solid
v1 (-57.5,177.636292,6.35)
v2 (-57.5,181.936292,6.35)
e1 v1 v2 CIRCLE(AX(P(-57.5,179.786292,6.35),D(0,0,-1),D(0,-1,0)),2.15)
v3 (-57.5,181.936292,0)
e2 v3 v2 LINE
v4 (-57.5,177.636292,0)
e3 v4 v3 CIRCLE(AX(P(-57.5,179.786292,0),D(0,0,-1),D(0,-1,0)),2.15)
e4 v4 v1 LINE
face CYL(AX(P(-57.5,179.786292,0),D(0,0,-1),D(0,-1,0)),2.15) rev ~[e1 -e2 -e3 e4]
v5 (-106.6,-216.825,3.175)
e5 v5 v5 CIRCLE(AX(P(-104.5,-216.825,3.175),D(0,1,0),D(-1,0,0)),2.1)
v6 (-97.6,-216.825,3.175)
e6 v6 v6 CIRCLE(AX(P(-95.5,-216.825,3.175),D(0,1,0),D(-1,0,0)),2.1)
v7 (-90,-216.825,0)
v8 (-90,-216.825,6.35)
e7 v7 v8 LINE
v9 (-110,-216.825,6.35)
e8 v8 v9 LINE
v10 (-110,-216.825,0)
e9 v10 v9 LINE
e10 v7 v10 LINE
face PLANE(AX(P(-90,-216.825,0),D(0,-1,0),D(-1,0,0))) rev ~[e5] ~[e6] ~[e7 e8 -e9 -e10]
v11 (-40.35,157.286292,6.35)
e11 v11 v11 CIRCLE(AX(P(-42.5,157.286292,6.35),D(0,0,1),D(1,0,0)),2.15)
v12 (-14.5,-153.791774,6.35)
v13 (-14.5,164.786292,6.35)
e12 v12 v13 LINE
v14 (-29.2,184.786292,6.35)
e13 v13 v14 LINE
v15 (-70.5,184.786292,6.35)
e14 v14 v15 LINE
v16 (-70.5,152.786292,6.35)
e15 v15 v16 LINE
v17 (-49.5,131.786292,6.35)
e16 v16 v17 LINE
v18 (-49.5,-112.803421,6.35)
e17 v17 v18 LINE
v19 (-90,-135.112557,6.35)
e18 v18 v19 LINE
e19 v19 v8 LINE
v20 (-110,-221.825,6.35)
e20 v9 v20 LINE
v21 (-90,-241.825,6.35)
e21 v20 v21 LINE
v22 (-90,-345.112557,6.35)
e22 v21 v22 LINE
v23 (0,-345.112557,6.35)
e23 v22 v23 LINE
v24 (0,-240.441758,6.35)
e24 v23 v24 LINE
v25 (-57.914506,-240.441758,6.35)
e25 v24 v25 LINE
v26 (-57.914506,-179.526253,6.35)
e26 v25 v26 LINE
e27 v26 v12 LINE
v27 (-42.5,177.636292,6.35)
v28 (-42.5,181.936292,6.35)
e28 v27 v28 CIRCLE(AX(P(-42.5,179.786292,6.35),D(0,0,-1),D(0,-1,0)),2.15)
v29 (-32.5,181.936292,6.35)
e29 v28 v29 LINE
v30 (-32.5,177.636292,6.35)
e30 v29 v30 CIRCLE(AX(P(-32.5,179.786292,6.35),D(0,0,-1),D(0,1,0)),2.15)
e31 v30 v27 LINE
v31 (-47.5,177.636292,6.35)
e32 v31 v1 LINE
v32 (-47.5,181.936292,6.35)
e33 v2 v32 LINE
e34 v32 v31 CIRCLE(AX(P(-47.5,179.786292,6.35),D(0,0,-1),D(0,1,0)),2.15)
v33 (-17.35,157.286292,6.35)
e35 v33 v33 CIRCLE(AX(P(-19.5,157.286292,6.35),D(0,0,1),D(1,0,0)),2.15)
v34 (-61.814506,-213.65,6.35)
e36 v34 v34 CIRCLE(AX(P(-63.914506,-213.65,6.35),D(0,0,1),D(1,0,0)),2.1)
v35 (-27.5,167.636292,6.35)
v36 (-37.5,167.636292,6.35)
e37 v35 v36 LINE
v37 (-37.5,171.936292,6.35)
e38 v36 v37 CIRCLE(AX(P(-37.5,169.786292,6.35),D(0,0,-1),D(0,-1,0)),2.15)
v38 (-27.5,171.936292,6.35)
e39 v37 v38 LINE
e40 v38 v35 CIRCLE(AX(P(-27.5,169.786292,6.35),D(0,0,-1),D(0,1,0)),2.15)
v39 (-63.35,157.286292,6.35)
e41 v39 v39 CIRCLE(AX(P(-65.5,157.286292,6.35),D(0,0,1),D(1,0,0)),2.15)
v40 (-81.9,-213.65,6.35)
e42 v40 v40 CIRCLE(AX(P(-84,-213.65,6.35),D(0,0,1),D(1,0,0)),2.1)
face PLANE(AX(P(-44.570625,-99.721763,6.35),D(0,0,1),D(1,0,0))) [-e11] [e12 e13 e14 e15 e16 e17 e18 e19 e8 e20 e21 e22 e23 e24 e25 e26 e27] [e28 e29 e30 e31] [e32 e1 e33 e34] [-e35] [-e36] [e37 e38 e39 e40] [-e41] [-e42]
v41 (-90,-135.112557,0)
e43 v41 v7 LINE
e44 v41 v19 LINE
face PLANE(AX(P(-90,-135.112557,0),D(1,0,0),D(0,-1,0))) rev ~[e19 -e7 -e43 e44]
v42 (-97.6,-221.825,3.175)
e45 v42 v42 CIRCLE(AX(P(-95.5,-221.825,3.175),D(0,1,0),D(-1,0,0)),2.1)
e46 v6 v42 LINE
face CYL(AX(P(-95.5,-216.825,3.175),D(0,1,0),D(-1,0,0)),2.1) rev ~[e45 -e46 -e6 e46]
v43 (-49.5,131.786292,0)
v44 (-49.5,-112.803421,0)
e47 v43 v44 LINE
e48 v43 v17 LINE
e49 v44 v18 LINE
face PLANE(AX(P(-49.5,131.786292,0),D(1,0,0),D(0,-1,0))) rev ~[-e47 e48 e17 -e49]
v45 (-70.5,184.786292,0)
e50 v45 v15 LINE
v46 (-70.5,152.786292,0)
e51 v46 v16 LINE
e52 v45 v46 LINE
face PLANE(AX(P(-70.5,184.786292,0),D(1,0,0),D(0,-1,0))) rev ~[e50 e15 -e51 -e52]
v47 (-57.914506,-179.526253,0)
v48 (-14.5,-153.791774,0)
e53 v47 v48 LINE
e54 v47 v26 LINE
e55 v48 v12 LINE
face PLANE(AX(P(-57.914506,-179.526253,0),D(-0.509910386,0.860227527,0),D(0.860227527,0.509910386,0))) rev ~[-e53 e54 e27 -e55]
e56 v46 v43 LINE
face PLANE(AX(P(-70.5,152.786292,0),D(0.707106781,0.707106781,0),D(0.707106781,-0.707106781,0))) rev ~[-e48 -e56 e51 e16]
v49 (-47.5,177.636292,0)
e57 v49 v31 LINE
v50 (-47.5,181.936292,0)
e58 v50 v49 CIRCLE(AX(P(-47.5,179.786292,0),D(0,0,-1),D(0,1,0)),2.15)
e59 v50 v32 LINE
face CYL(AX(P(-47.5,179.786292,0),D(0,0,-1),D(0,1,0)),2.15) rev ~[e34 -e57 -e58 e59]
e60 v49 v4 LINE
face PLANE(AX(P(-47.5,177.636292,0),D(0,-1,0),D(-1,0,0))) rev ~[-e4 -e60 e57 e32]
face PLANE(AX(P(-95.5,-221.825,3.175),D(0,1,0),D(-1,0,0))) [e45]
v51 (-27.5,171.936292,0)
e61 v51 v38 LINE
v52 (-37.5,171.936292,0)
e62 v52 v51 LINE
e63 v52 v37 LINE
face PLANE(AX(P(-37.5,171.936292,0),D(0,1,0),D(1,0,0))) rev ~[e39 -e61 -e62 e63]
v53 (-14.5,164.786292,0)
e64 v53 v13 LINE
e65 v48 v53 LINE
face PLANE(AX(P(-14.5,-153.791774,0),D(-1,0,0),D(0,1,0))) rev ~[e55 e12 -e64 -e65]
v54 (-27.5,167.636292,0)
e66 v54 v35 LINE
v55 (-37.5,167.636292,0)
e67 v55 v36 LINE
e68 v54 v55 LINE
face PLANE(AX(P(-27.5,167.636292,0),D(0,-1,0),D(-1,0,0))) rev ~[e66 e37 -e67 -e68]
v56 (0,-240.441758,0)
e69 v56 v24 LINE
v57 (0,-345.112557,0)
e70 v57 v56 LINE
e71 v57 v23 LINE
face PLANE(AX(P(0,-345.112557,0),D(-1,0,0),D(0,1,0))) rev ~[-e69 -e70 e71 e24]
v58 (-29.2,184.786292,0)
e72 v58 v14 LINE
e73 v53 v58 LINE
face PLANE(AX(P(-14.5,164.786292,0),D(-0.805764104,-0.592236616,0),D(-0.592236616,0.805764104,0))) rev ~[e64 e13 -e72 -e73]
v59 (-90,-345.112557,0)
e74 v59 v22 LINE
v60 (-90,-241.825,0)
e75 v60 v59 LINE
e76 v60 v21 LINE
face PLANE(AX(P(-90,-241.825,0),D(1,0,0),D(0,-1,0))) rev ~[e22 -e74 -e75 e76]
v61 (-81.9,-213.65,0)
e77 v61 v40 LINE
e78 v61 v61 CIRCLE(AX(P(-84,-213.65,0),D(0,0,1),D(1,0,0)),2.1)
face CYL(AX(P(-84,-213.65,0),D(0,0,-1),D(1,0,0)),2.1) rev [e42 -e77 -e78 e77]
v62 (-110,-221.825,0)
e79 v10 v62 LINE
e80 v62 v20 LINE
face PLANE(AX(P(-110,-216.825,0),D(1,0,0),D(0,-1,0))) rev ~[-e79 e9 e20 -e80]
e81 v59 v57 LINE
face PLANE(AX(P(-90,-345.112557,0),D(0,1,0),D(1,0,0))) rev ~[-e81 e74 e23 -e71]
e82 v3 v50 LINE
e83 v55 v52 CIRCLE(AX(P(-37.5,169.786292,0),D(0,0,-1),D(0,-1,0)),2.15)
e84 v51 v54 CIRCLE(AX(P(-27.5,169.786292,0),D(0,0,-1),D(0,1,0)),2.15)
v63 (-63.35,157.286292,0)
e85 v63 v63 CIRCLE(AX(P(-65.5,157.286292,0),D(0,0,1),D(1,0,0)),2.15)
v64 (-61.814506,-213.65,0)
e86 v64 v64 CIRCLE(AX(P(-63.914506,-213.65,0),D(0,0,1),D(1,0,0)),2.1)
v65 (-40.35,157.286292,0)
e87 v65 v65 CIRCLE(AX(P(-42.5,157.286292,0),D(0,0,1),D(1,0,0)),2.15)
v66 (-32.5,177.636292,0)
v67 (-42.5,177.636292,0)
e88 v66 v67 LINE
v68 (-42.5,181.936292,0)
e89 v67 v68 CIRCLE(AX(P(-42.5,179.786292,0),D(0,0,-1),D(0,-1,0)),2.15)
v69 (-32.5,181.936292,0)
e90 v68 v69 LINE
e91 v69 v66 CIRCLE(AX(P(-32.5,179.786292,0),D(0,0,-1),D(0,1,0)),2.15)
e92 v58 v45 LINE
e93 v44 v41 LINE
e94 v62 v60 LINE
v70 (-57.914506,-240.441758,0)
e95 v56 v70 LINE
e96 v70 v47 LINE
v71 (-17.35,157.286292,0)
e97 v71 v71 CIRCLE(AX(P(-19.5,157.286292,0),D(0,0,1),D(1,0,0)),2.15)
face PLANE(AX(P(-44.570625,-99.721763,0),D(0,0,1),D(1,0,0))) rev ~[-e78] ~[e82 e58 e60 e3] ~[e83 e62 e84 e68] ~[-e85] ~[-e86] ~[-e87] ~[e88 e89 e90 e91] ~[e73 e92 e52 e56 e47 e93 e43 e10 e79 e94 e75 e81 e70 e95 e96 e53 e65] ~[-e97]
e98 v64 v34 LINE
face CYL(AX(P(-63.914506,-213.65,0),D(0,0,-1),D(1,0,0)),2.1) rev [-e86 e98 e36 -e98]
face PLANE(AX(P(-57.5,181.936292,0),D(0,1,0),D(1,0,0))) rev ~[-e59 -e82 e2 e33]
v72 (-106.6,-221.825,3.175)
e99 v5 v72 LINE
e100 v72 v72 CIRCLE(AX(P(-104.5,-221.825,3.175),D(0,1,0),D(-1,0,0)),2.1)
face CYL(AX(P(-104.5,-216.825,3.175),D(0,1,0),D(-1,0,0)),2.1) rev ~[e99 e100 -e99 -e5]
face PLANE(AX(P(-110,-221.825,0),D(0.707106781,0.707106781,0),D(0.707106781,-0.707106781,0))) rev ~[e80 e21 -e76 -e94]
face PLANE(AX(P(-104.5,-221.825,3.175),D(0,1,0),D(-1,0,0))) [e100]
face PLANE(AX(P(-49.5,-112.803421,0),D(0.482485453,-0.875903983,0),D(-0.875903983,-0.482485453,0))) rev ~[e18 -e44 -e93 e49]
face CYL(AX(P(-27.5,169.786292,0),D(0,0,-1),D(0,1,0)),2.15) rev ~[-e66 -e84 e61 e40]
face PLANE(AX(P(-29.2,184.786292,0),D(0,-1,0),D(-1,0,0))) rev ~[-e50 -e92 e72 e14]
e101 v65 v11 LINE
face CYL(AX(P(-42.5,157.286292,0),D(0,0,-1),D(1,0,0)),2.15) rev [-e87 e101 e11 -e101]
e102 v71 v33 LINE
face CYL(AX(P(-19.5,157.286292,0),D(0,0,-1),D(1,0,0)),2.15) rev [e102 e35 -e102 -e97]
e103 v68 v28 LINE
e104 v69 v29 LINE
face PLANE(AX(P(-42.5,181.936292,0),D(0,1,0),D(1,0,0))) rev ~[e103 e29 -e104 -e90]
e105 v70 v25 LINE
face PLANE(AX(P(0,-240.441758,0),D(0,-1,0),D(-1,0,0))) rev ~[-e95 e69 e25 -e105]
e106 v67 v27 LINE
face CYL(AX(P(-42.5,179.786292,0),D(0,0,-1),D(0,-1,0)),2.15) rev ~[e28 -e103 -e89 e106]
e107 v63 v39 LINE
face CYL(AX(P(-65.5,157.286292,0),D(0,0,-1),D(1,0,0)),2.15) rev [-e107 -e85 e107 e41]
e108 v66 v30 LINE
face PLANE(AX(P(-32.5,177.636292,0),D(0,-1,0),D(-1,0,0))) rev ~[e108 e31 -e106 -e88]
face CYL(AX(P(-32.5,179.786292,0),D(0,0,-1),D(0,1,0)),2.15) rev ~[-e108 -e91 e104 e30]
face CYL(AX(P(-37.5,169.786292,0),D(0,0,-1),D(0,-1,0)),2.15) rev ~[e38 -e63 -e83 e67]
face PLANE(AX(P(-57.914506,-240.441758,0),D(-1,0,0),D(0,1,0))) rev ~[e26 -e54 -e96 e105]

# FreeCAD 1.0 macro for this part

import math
import FreeCAD as App
import Part
import Sketcher
from FreeCAD import Vector
Q = App.Units.Quantity

doc = App.newDocument("Part")
body = doc.addObject("PartDesign::Body", "Body")

# Sketch on XY plane
sketch1 = body.newObject("Sketcher::SketchObject", "Sketch")
sketch1.AttachmentSupport = (doc.getObject("XY_Plane"), [""])
sketch1.MapMode = "FlatFace"
sketch1.addGeometry([
    Part.LineSegment(Vector(-14.5, 164.8, 0), Vector(-29.2, 184.8, 0)),  # 0
    Part.LineSegment(Vector(-29.2, 184.8, 0), Vector(-70.5, 184.8, 0)),  # 1
    Part.LineSegment(Vector(-70.5, 184.8, 0), Vector(-70.5, 152.8, 0)),  # 2
    Part.LineSegment(Vector(-70.5, 152.8, 0), Vector(-49.5, 131.8, 0)),  # 3
    Part.LineSegment(Vector(-49.5, 131.8, 0), Vector(-49.5, -112.8, 0)),  # 4
    Part.LineSegment(Vector(-49.5, -112.8, 0), Vector(-90, -135.1, 0)),  # 5
    Part.LineSegment(Vector(-90, -135.1, 0), Vector(-90, -216.8, 0)),  # 6
    Part.LineSegment(Vector(-90, -216.8, 0), Vector(-110, -216.8, 0)),  # 7
    Part.LineSegment(Vector(-110, -216.8, 0), Vector(-110, -221.8, 0)),  # 8
    Part.LineSegment(Vector(-110, -221.8, 0), Vector(-90, -241.8, 0)),  # 9
    Part.LineSegment(Vector(-90, -241.8, 0), Vector(-90, -345.1, 0)),  # 10
    Part.LineSegment(Vector(-90, -345.1, 0), Vector(0, -345.1, 0)),  # 11
    Part.LineSegment(Vector(0, -345.1, 0), Vector(0, -240.4, 0)),  # 12
    Part.LineSegment(Vector(0, -240.4, 0), Vector(-57.9, -240.4, 0)),  # 13
    Part.LineSegment(Vector(-57.9, -240.4, 0), Vector(-57.9, -179.5, 0)),  # 14
    Part.LineSegment(Vector(-57.9, -179.5, 0), Vector(-14.5, -153.8, 0)),  # 15
    Part.LineSegment(Vector(-14.5, -153.8, 0), Vector(-14.5, 164.8, 0)),  # 16
    Part.Circle(Vector(-84, -213.7, 0), Vector(0, 0, 1), 2.1),  # 17
    Part.Circle(Vector(-63.9, -213.7, 0), Vector(0, 0, 1), 2.1),  # 18
    Part.Circle(Vector(-65.5, 157.3, 0), Vector(0, 0, 1), 2.1),  # 19
    Part.ArcOfCircle(Part.Circle(Vector(-57.5, 179.8, 0), Vector(0, 0, 1), 2.1), math.radians(90), math.radians(270)),  # 20
    Part.LineSegment(Vector(-57.5, 181.9, 0), Vector(-47.5, 181.9, 0)),  # 21
    Part.ArcOfCircle(Part.Circle(Vector(-47.5, 179.8, 0), Vector(0, 0, 1), 2.1), math.radians(-90), math.radians(90)),  # 22
    Part.LineSegment(Vector(-47.5, 177.6, 0), Vector(-57.5, 177.6, 0)),  # 23
    Part.Circle(Vector(-42.5, 157.3, 0), Vector(0, 0, 1), 2.1),  # 24
    Part.ArcOfCircle(Part.Circle(Vector(-42.5, 179.8, 0), Vector(0, 0, 1), 2.1), math.radians(90), math.radians(270)),  # 25
    Part.LineSegment(Vector(-42.5, 181.9, 0), Vector(-32.5, 181.9, 0)),  # 26
    Part.ArcOfCircle(Part.Circle(Vector(-32.5, 179.8, 0), Vector(0, 0, 1), 2.1), math.radians(-90), math.radians(90)),  # 27
    Part.LineSegment(Vector(-32.5, 177.6, 0), Vector(-42.5, 177.6, 0)),  # 28
    Part.ArcOfCircle(Part.Circle(Vector(-37.5, 169.8, 0), Vector(0, 0, 1), 2.1), math.radians(90), math.radians(270)),  # 29
    Part.LineSegment(Vector(-37.5, 171.9, 0), Vector(-27.5, 171.9, 0)),  # 30
    Part.ArcOfCircle(Part.Circle(Vector(-27.5, 169.8, 0), Vector(0, 0, 1), 2.1), math.radians(-90), math.radians(90)),  # 31
    Part.LineSegment(Vector(-27.5, 167.6, 0), Vector(-37.5, 167.6, 0)),  # 32
    Part.Circle(Vector(-19.5, 157.3, 0), Vector(0, 0, 1), 2.1),  # 33
], False)
sketch1.addConstraint([
    Sketcher.Constraint("Coincident", 0, 2, 1, 1),
    Sketcher.Constraint("Coincident", 1, 2, 2, 1),
    Sketcher.Constraint("Coincident", 2, 2, 3, 1),
    Sketcher.Constraint("Coincident", 3, 2, 4, 1),
    Sketcher.Constraint("Coincident", 4, 2, 5, 1),
    Sketcher.Constraint("Coincident", 5, 2, 6, 1),
    Sketcher.Constraint("Coincident", 6, 2, 7, 1),
    Sketcher.Constraint("Coincident", 7, 2, 8, 1),
    Sketcher.Constraint("Coincident", 8, 2, 9, 1),
    Sketcher.Constraint("Coincident", 9, 2, 10, 1),
    Sketcher.Constraint("Coincident", 10, 2, 11, 1),
    Sketcher.Constraint("Coincident", 11, 2, 12, 1),
    Sketcher.Constraint("Coincident", 12, 2, 13, 1),
    Sketcher.Constraint("Coincident", 13, 2, 14, 1),
    Sketcher.Constraint("Coincident", 14, 2, 15, 1),
    Sketcher.Constraint("Coincident", 15, 2, 16, 1),
    Sketcher.Constraint("Coincident", 16, 2, 0, 1),
    Sketcher.Constraint("Tangent", 20, 1, 21, 1),
    Sketcher.Constraint("Tangent", 21, 2, 22, 2),
    Sketcher.Constraint("Tangent", 22, 1, 23, 1),
    Sketcher.Constraint("Tangent", 23, 2, 20, 2),
    Sketcher.Constraint("Tangent", 25, 1, 26, 1),
    Sketcher.Constraint("Tangent", 26, 2, 27, 2),
    Sketcher.Constraint("Tangent", 27, 1, 28, 1),
    Sketcher.Constraint("Tangent", 28, 2, 25, 2),
    Sketcher.Constraint("Tangent", 29, 1, 30, 1),
    Sketcher.Constraint("Tangent", 30, 2, 31, 2),
    Sketcher.Constraint("Tangent", 31, 1, 32, 1),
    Sketcher.Constraint("Tangent", 32, 2, 29, 2),
    Sketcher.Constraint("Horizontal", 1),
    Sketcher.Constraint("Vertical", 2),
    Sketcher.Constraint("Vertical", 4),
    Sketcher.Constraint("Vertical", 6),
    Sketcher.Constraint("Horizontal", 7),
    Sketcher.Constraint("Vertical", 8),
    Sketcher.Constraint("Vertical", 10),
    Sketcher.Constraint("Horizontal", 11),
    Sketcher.Constraint("Vertical", 12),
    Sketcher.Constraint("Horizontal", 13),
    Sketcher.Constraint("Vertical", 14),
    Sketcher.Constraint("Vertical", 16),
    Sketcher.Constraint("Horizontal", 21),
    Sketcher.Constraint("Horizontal", 23),
    Sketcher.Constraint("Horizontal", 26),
    Sketcher.Constraint("Horizontal", 28),
    Sketcher.Constraint("Horizontal", 30),
    Sketcher.Constraint("Horizontal", 32),
    Sketcher.Constraint("Equal", 17, 18),
    Sketcher.Constraint("Equal", 19, 20),
    Sketcher.Constraint("Equal", 22, 24),
    Sketcher.Constraint("Equal", 24, 25),
    Sketcher.Constraint("Equal", 27, 29),
    Sketcher.Constraint("Equal", 31, 33),
    Sketcher.Constraint("PointOnObject", 11, 2, -2),
    Sketcher.Constraint("Parallel", 3, 9),
    Sketcher.Constraint("Horizontal", 17, 3, 18, 3),
    Sketcher.Constraint("Horizontal", 19, 3, 24, 3),
    Sketcher.Constraint("Horizontal", 22, 3, 25, 3),
    Sketcher.Constraint("Horizontal", 24, 3, 33, 3),
    Sketcher.Constraint("Vertical", 24, 3, 25, 3),
    Sketcher.Constraint("Vertical", 6, 2, 9, 2),
    Sketcher.Constraint("Equal", 23, 26),
    Sketcher.Constraint("Equal", 28, 30),
    Sketcher.Constraint("Diameter", 17, Q("4.2 mm")),
    Sketcher.Constraint("Diameter", 19, Q("4.3 mm")),
    Sketcher.Constraint("DistanceX", 7, 2, 7, 1, Q("20 mm")),
    Sketcher.Constraint("DistanceX", 11, 1, 11, 2, Q("90 mm")),
    Sketcher.Constraint("DistanceX", 21, 1, 21, 2, Q("10 mm")),
    Sketcher.Constraint("DistanceY", 2, 2, 2, 1, Q("32 mm")),
    Sketcher.Constraint("DistanceY", 8, 2, 8, 1, Q("5 mm")),
    Sketcher.Constraint("Angle", 3, Q("-45 deg")),
    Sketcher.Constraint("DistanceX", 1, 2, 1, 1, Q("41.3 mm")),
    Sketcher.Constraint("DistanceX", 17, 3, -1, 1, Q("84 mm")),
    Sketcher.Constraint("DistanceX", 19, 3, 20, 3, Q("8 mm")),
    Sketcher.Constraint("DistanceX", 19, 3, 24, 3, Q("23 mm")),
    Sketcher.Constraint("DistanceX", 25, 3, 29, 3, Q("5 mm")),
    Sketcher.Constraint("DistanceY", 29, 3, 25, 3, Q("10 mm")),
    Sketcher.Constraint("DistanceX", 31, 3, 33, 3, Q("8 mm")),
    Sketcher.Constraint("DistanceY", 27, 3, 0, 2, Q("5 mm")),
    Sketcher.Constraint("DistanceX", 1, 2, 20, 3, Q("13 mm")),
    Sketcher.Constraint("DistanceX", 3, 2, 24, 3, Q("7 mm")),
    Sketcher.Constraint("DistanceX", 18, 3, 13, 2, Q("6 mm")),
    Sketcher.Constraint("DistanceX", 4, 2, 15, 2, Q("35 mm")),
    Sketcher.Constraint("DistanceY", 16, 2, 31, 3, Q("5 mm")),
    Sketcher.Constraint("DistanceX", 19, 3, -1, 1, Q("65.5 mm")),
    Sketcher.Constraint("DistanceY", 19, 3, 20, 3, Q("22.5 mm")),
    Sketcher.Constraint("DistanceY", 17, 3, -1, 1, Q("213.65 mm")),
    Sketcher.Constraint("DistanceY", 12, 1, 12, 2, Q("104.670799 mm")),
    Sketcher.Constraint("DistanceY", 6, 2, -1, 1, Q("216.825 mm")),
    Sketcher.Constraint("Distance", 15, Q("50.468631 mm")),
    Sketcher.Constraint("DistanceX", 13, 2, 13, 1, Q("57.914506 mm")),
    Sketcher.Constraint("DistanceY", 4, 2, 4, 1, Q("244.589713 mm")),
    Sketcher.Constraint("DistanceY", 6, 2, 6, 1, Q("81.712443 mm")),
    Sketcher.Constraint("DistanceY", 10, 2, 10, 1, Q("103.287557 mm")),
    Sketcher.Constraint("DistanceY", 14, 1, 14, 2, Q("60.915504 mm")),
    Sketcher.Constraint("DistanceY", 16, 1, 16, 2, Q("318.578066 mm")),
])
pad1 = body.newObject("PartDesign::Pad", "Pad")
pad1.Profile = sketch1
pad1.Length = 6.35

# Sketch on XZ plane
sketch2 = body.newObject("Sketcher::SketchObject", "Sketch001")
sketch2.AttachmentSupport = (doc.getObject("XZ_Plane"), [""])
sketch2.MapMode = "FlatFace"
sketch2.AttachmentOffset = App.Placement(Vector(0, 0, 216.825), App.Rotation())
sketch2.addGeometry([
    Part.Circle(Vector(-95.5, 3.2, 0), Vector(0, 0, 1), 2.1),
    Part.Circle(Vector(-104.5, 3.2, 0), Vector(0, 0, 1), 2.1),
], False)
sketch2.addConstraint([
    Sketcher.Constraint("Equal", 0, 1),
    Sketcher.Constraint("Horizontal", 0, 3, 1, 3),
    Sketcher.Constraint("Diameter", 0, Q("4.2 mm")),
    Sketcher.Constraint("DistanceX", 1, 3, 0, 3, Q("9 mm")),
    Sketcher.Constraint("DistanceX", 0, 3, -1, 1, Q("95.5 mm")),
    Sketcher.Constraint("DistanceY", -1, 1, 0, 3, Q("3.175 mm")),
])
pocket1 = body.newObject("PartDesign::Pocket", "Pocket")
pocket1.Profile = sketch2
pocket1.Length = 5
pocket1.Reversed = True

doc.recompute()
